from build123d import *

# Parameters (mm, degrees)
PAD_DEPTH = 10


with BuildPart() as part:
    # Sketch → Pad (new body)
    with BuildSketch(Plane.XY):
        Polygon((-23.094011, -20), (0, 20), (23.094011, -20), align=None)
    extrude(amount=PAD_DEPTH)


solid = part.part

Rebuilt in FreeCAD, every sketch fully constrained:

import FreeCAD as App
import Part
import Sketcher

V = App.Vector
Q = App.Units.Quantity

doc = App.newDocument("Part")
body = doc.addObject("PartDesign::Body", "Body")

sketch1 = body.newObject("Sketcher::SketchObject", "Sketch")
sketch1.AttachmentSupport = (doc.getObject("XY_Plane"), [""])
sketch1.MapMode = "FlatFace"
sketch1.addGeometry([
    Part.LineSegment(V(0, 20, 0), V(-23.094011, -20, 0)),
    Part.LineSegment(V(-23.094011, -20, 0), V(23.094011, -20, 0)),
    Part.LineSegment(V(23.094011, -20, 0), V(0, 20, 0)),
], False)
sketch1.addConstraint([
    Sketcher.Constraint("Coincident", 0, 2, 1, 1),
    Sketcher.Constraint("Coincident", 1, 2, 2, 1),
    Sketcher.Constraint("Coincident", 2, 2, 0, 1),
    Sketcher.Constraint("Horizontal", 1),
    Sketcher.Constraint("PointOnObject", 2, 2, -2),
    Sketcher.Constraint("Equal", 0, 2),
    Sketcher.Constraint("Angle", 0, Q("-120 deg")),
    Sketcher.Constraint("DistanceY", 0, 2, -1, 1, 20.0),
    Sketcher.Constraint("DistanceY", -1, 1, 2, 2, 20.0),
])
pad1 = body.newObject("PartDesign::Pad", "Pad")
pad1.Profile = sketch1
pad1.Length = 10

doc.recompute()
